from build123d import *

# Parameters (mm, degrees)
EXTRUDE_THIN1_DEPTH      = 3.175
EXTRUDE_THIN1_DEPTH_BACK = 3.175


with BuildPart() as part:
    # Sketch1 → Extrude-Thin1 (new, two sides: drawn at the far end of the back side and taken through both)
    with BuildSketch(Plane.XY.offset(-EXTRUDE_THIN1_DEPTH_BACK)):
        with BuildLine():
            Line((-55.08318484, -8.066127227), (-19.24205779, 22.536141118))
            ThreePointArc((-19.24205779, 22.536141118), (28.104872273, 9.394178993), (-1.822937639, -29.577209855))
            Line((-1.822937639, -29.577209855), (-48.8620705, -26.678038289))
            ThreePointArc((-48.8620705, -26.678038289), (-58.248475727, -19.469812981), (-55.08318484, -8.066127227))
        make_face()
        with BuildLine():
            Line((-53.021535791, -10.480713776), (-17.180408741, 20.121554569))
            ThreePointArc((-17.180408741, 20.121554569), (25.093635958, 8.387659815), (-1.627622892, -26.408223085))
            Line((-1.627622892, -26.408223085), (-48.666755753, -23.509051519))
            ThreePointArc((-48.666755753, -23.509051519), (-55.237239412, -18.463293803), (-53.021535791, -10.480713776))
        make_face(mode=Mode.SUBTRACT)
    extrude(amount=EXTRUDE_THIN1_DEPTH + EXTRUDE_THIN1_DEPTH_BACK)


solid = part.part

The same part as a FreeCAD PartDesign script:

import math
import FreeCAD as App
import Part
import Sketcher
from FreeCAD import Vector
Q = App.Units.Quantity

doc = App.newDocument("Part")
body = doc.addObject("PartDesign::Body", "Body")

sketch1 = body.newObject("Sketcher::SketchObject", "Sketch")
sketch1.AttachmentSupport = (doc.getObject("XY_Plane"), [""])
sketch1.MapMode = "FlatFace"
sketch1.addGeometry(Part.LineSegment(Vector(-19, 23, 0), Vector(-55, -8, 0)), False)
sketch1.addGeometry(Part.ArcOfCircle(Part.Circle(Vector(-48, -16, 0), Vector(0, 0, 1), 11), math.radians(130), math.radians(266)), False)
sketch1.addGeometry(Part.LineSegment(Vector(-49, -27, 0), Vector(-2, -30, 0)), False)
sketch1.addGeometry(Part.ArcOfCircle(Part.Circle(Vector(0, 0, 0), Vector(0, 0, 1), 30), math.radians(-94), math.radians(130)), False)
sketch1.addGeometry(Part.LineSegment(Vector(-53, -10, 0), Vector(-17, 20, 0)), False)
sketch1.addGeometry(Part.ArcOfCircle(Part.Circle(Vector(0, 0, 0), Vector(0, 0, 1), 26), math.radians(-94), math.radians(130)), False)
sketch1.addGeometry(Part.LineSegment(Vector(-2, -26, 0), Vector(-49, -24, 0)), False)
sketch1.addGeometry(Part.ArcOfCircle(Part.Circle(Vector(-48, -16, 0), Vector(0, 0, 1), 7), math.radians(130), math.radians(266)), False)
sketch1.addConstraint(Sketcher.Constraint("Tangent", 0, 2, 1, 1))
sketch1.addConstraint(Sketcher.Constraint("Tangent", 1, 2, 2, 1))
sketch1.addConstraint(Sketcher.Constraint("Tangent", 2, 2, 3, 1))
sketch1.addConstraint(Sketcher.Constraint("Tangent", 3, 2, 0, 1))
sketch1.addConstraint(Sketcher.Constraint("Tangent", 4, 2, 5, 2))
sketch1.addConstraint(Sketcher.Constraint("Tangent", 5, 1, 6, 1))
sketch1.addConstraint(Sketcher.Constraint("Tangent", 6, 2, 7, 2))
sketch1.addConstraint(Sketcher.Constraint("Tangent", 7, 1, 4, 1))
sketch1.addConstraint(Sketcher.Constraint("Coincident", 3, 3, -1, 1))
sketch1.addConstraint(Sketcher.Constraint("Coincident", 5, 3, -1, 1))
sketch1.addConstraint(Sketcher.Constraint("Coincident", 7, 3, 1, 3))
sketch1.addConstraint(Sketcher.Constraint("Parallel", 0, 4))
sketch1.addConstraint(Sketcher.Constraint("Radius", 1, 10.583333))
sketch1.addConstraint(Sketcher.Constraint("Radius", 3, 29.633333))
sketch1.addConstraint(Sketcher.Constraint("Radius", 5, 26.458333))
sketch1.addConstraint(Sketcher.Constraint("DistanceX", 1, 3, 5, 1, 46.583398))
sketch1.addConstraint(Sketcher.Constraint("Distance", 0, 47.128391))
pad1 = body.newObject("PartDesign::Pad", "Pad")
pad1.Profile = sketch1
pad1.Type = "TwoLengths"
pad1.Length = Q("0.125 in")
pad1.Length2 = Q("0.125 in")

doc.recompute()
